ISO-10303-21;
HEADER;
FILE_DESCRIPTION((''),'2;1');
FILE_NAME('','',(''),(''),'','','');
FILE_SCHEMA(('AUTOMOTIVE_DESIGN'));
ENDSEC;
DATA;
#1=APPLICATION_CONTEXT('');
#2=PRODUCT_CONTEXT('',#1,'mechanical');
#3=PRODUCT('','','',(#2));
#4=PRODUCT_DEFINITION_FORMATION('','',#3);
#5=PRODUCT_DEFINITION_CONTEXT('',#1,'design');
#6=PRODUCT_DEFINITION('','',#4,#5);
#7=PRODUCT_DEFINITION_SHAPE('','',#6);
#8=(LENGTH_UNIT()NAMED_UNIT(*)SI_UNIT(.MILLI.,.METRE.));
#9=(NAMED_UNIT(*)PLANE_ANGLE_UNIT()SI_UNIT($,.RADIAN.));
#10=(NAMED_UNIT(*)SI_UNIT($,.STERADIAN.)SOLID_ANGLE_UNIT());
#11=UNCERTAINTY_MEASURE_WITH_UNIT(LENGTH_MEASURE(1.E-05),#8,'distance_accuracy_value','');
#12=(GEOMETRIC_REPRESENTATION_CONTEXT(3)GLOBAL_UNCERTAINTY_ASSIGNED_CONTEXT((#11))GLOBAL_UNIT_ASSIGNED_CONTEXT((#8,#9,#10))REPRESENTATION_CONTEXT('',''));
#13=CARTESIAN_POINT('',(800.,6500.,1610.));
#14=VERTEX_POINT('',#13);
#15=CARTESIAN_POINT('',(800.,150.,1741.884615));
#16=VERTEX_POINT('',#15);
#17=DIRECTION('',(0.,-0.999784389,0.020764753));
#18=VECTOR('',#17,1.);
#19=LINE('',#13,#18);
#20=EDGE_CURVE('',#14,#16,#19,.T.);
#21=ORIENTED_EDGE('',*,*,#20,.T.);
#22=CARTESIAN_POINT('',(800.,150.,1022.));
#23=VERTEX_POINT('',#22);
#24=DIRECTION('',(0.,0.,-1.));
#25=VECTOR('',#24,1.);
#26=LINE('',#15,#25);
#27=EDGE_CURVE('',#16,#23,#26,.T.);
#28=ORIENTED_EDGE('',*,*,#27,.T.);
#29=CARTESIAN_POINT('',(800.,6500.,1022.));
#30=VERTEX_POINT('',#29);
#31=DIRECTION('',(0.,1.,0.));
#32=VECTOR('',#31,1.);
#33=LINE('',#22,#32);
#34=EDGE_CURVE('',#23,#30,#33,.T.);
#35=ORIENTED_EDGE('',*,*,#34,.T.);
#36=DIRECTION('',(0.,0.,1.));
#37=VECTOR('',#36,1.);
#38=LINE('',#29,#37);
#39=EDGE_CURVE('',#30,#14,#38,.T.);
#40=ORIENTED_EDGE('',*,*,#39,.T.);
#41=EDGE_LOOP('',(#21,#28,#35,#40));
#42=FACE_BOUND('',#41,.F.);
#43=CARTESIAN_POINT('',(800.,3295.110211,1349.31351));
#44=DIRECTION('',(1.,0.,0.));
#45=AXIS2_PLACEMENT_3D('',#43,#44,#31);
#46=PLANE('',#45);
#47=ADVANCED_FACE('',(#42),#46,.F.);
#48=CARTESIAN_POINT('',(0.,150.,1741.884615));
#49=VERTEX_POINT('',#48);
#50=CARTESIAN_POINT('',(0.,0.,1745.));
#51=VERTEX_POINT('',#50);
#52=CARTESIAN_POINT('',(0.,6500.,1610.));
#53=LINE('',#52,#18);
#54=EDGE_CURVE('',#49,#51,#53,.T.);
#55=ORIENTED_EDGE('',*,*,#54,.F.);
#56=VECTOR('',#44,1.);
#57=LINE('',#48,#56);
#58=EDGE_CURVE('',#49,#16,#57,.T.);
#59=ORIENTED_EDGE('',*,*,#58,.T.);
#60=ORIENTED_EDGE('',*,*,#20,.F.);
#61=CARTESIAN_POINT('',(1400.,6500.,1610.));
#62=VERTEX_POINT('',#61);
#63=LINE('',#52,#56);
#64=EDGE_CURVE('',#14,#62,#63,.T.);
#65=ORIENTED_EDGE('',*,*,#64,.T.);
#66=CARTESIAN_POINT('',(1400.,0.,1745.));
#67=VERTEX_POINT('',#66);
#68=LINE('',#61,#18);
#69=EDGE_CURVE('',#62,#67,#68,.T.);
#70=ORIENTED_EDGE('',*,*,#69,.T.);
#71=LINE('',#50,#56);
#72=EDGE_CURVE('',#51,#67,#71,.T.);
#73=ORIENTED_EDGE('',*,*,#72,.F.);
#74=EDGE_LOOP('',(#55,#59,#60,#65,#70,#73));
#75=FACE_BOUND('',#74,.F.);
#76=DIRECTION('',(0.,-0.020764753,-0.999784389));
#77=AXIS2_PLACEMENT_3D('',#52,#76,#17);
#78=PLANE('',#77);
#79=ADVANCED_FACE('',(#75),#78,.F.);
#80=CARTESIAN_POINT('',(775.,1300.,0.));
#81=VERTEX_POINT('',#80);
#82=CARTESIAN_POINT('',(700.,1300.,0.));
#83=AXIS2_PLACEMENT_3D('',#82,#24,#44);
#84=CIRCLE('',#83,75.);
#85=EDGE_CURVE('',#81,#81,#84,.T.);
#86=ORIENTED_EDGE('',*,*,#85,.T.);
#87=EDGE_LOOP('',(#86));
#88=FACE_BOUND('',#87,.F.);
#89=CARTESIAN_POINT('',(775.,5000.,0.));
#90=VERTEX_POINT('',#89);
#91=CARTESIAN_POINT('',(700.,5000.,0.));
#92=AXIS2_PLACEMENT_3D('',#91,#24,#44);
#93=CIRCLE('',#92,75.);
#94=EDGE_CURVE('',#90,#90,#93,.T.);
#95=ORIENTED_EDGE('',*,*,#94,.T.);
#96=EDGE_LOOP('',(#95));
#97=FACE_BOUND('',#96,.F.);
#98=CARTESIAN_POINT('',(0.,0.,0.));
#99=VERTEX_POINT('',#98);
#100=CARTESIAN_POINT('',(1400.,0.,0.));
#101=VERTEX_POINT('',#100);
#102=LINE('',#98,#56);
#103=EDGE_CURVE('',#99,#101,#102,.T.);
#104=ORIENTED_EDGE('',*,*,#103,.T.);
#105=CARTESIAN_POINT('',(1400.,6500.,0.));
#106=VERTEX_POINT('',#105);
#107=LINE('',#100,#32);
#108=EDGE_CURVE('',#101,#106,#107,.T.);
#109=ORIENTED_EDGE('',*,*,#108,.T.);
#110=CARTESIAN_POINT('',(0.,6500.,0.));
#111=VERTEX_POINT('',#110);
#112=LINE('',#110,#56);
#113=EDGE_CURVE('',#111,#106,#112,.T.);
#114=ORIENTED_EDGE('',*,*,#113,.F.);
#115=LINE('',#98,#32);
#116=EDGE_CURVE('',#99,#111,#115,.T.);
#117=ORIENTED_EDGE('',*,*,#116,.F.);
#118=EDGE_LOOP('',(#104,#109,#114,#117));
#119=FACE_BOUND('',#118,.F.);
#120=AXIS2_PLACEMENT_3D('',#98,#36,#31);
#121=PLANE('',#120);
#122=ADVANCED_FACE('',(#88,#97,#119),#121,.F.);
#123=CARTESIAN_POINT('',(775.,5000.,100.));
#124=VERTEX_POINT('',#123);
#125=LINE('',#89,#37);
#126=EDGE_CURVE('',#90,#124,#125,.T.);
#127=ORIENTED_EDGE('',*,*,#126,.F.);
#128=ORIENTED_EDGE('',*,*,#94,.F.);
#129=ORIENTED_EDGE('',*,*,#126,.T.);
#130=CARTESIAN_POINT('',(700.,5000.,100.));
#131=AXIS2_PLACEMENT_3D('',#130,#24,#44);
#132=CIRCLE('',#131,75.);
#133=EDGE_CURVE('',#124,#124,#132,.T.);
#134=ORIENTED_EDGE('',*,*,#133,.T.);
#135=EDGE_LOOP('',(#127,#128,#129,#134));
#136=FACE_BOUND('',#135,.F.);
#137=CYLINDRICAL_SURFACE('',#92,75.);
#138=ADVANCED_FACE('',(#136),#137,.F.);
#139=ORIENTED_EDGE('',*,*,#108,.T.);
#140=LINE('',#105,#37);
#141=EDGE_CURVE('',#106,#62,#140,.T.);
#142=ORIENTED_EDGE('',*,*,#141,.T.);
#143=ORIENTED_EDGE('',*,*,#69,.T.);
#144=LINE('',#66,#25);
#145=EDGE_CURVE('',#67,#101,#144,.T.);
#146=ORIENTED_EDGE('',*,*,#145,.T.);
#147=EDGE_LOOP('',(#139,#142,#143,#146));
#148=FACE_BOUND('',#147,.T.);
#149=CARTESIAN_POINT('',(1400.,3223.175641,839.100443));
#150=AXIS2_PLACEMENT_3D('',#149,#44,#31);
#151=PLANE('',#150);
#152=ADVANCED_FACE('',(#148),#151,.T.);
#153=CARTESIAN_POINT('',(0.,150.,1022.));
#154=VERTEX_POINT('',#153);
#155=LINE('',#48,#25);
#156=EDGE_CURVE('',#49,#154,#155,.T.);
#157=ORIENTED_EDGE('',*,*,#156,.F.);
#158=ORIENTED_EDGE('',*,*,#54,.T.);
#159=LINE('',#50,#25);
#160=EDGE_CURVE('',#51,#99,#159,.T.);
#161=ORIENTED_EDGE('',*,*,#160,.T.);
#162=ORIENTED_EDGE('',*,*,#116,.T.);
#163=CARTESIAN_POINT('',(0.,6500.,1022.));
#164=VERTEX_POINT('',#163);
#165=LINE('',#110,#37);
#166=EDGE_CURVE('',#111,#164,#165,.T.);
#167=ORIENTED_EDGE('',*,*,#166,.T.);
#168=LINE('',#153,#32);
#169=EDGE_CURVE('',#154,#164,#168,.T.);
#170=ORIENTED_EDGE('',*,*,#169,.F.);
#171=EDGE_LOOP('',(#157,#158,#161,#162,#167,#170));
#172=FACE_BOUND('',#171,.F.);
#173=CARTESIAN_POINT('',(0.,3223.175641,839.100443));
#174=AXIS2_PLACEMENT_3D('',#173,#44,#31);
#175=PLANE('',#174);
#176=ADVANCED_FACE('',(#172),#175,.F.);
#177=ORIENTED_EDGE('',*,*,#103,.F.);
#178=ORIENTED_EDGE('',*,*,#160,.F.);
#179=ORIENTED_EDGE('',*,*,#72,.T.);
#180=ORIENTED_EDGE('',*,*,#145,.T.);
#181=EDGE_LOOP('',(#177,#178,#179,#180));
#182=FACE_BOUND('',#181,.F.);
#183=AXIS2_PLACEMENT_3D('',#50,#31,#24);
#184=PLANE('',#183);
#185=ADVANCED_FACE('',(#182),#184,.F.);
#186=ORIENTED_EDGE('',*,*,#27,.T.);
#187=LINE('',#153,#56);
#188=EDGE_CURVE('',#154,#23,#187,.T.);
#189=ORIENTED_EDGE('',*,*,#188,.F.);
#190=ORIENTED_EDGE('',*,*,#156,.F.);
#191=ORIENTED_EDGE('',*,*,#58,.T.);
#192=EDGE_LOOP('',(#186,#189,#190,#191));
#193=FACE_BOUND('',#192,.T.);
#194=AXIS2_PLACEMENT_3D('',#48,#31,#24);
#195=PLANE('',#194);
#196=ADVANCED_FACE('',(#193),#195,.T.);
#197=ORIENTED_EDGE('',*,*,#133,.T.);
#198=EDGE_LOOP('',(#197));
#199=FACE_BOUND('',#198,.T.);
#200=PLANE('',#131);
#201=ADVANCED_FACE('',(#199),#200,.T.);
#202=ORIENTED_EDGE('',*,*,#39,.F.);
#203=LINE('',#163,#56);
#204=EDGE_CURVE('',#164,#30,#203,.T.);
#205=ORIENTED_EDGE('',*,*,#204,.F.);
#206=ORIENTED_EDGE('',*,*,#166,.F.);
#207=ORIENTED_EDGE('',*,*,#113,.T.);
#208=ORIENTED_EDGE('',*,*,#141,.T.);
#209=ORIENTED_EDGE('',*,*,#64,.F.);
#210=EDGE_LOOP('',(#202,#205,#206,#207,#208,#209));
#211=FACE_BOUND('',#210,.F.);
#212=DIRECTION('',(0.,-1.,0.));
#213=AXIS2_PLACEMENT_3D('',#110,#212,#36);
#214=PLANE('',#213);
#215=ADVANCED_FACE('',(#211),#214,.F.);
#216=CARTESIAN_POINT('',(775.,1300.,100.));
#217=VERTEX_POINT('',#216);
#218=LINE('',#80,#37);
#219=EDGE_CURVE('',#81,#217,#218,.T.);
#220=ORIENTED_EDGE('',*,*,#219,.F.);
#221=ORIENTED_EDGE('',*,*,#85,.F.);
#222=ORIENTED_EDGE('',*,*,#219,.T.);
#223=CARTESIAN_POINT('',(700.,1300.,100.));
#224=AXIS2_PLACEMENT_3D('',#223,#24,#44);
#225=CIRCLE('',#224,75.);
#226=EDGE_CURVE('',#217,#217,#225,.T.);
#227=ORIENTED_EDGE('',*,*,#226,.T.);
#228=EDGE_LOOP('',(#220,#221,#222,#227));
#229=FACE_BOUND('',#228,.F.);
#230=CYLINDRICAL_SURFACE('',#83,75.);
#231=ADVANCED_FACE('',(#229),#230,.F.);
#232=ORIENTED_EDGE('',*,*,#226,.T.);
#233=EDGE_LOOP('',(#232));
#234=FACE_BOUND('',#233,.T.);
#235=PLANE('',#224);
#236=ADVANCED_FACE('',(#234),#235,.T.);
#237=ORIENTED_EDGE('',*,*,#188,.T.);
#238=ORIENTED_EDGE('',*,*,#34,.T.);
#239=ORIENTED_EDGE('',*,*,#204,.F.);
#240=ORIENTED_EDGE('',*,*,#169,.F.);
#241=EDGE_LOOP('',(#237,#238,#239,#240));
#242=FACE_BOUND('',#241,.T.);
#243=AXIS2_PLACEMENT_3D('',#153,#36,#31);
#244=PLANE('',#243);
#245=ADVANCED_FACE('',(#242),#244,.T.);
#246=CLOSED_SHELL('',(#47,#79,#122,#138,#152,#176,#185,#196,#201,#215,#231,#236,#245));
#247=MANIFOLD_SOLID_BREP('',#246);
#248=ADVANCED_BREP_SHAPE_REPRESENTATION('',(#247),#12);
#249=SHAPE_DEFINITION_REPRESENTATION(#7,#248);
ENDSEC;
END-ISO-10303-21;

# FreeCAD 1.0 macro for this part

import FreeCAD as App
import Part
import Sketcher
Q = App.Units.Quantity

doc = App.newDocument("Part")
body = doc.addObject("PartDesign::Body", "Body")

# Sketch on YZ plane
sketch1 = doc.addObject("Sketcher::SketchObject", "Sketch")
body.addObject(sketch1)
sketch1.AttachmentSupport = (doc.YZ_Plane, [""])
sketch1.MapMode = "FlatFace"
sketch1.addGeometry(Part.LineSegment(App.Vector(0, 1745, 0), App.Vector(0, 0, 0)), False)
sketch1.addGeometry(Part.LineSegment(App.Vector(0, 0, 0), App.Vector(6500, 0, 0)), False)
sketch1.addGeometry(Part.LineSegment(App.Vector(6500, 0, 0), App.Vector(6500, 1610, 0)), False)
sketch1.addGeometry(Part.LineSegment(App.Vector(6500, 1610, 0), App.Vector(0, 1745, 0)), False)
sketch1.addConstraint(Sketcher.Constraint("Coincident", 0, 2, 1, 1))
sketch1.addConstraint(Sketcher.Constraint("Coincident", 1, 2, 2, 1))
sketch1.addConstraint(Sketcher.Constraint("Coincident", 2, 2, 3, 1))
sketch1.addConstraint(Sketcher.Constraint("Coincident", 3, 2, 0, 1))
sketch1.addConstraint(Sketcher.Constraint("Vertical", 0))
sketch1.addConstraint(Sketcher.Constraint("Horizontal", 1))
sketch1.addConstraint(Sketcher.Constraint("Vertical", 2))
sketch1.addConstraint(Sketcher.Constraint("Coincident", 0, 2, -1, 1))
sketch1.addConstraint(Sketcher.Constraint("DistanceX", 1, 1, 1, 2, Q("6500 mm")))
sketch1.addConstraint(Sketcher.Constraint("DistanceY", 0, 2, 0, 1, Q("1745 mm")))
sketch1.addConstraint(Sketcher.Constraint("DistanceY", 2, 1, 2, 2, Q("1610 mm")))
pad1 = doc.addObject("PartDesign::Pad", "Pad")
body.addObject(pad1)
pad1.Profile = sketch1
pad1.Length = 1400

# Sketch on YZ plane
sketch2 = doc.addObject("Sketcher::SketchObject", "Sketch001")
body.addObject(sketch2)
sketch2.AttachmentSupport = (doc.YZ_Plane, [""])
sketch2.MapMode = "FlatFace"
sketch2.addGeometry(Part.LineSegment(App.Vector(150, 1022, 0), App.Vector(6500, 1022, 0)), False)
sketch2.addGeometry(Part.LineSegment(App.Vector(6500, 1022, 0), App.Vector(6500, 1610, 0)), False)
sketch2.addGeometry(Part.LineSegment(App.Vector(6500, 1610, 0), App.Vector(150, 1742, 0)), False)
sketch2.addGeometry(Part.LineSegment(App.Vector(150, 1742, 0), App.Vector(150, 1022, 0)), False)
sketch2.addConstraint(Sketcher.Constraint("Coincident", 0, 2, 1, 1))
sketch2.addConstraint(Sketcher.Constraint("Coincident", 1, 2, 2, 1))
sketch2.addConstraint(Sketcher.Constraint("Coincident", 2, 2, 3, 1))
sketch2.addConstraint(Sketcher.Constraint("Coincident", 3, 2, 0, 1))
sketch2.addConstraint(Sketcher.Constraint("Horizontal", 0))
sketch2.addConstraint(Sketcher.Constraint("Vertical", 1))
sketch2.addConstraint(Sketcher.Constraint("Vertical", 3))
sketch2.addConstraint(Sketcher.Constraint("DistanceX", 0, 1, 0, 2, Q("6350 mm")))
sketch2.addConstraint(Sketcher.Constraint("DistanceY", 1, 1, 1, 2, Q("588 mm")))
sketch2.addConstraint(Sketcher.Constraint("DistanceX", -1, 1, 0, 2, Q("6500 mm")))
sketch2.addConstraint(Sketcher.Constraint("DistanceY", -1, 1, 0, 2, Q("1022 mm")))
sketch2.addConstraint(Sketcher.Constraint("DistanceY", 3, 2, 3, 1, Q("719.884615 mm")))
pocket1 = doc.addObject("PartDesign::Pocket", "Pocket")
body.addObject(pocket1)
pocket1.Profile = sketch2
pocket1.Length = 800
pocket1.Reversed = True

# Sketch on XY plane
sketch3 = doc.addObject("Sketcher::SketchObject", "Sketch002")
body.addObject(sketch3)
sketch3.AttachmentSupport = (doc.XY_Plane, [""])
sketch3.MapMode = "FlatFace"
sketch3.addGeometry(Part.Circle(App.Vector(700, 1300, 0), App.Vector(0, 0, 1), 75), False)
sketch3.addGeometry(Part.Circle(App.Vector(700, 5000, 0), App.Vector(0, 0, 1), 75), False)
sketch3.addConstraint(Sketcher.Constraint("Equal", 0, 1))
sketch3.addConstraint(Sketcher.Constraint("Vertical", 0, 3, 1, 3))
sketch3.addConstraint(Sketcher.Constraint("Diameter", 0, Q("150 mm")))
sketch3.addConstraint(Sketcher.Constraint("DistanceX", -1, 1, 0, 3, Q("700 mm")))
sketch3.addConstraint(Sketcher.Constraint("DistanceY", -1, 1, 0, 3, Q("1300 mm")))
sketch3.addConstraint(Sketcher.Constraint("DistanceY", -1, 1, 1, 3, Q("5000 mm")))
pocket2 = doc.addObject("PartDesign::Pocket", "Pocket001")
body.addObject(pocket2)
pocket2.Profile = sketch3
pocket2.Length = 100
pocket2.Reversed = True

doc.recompute()
